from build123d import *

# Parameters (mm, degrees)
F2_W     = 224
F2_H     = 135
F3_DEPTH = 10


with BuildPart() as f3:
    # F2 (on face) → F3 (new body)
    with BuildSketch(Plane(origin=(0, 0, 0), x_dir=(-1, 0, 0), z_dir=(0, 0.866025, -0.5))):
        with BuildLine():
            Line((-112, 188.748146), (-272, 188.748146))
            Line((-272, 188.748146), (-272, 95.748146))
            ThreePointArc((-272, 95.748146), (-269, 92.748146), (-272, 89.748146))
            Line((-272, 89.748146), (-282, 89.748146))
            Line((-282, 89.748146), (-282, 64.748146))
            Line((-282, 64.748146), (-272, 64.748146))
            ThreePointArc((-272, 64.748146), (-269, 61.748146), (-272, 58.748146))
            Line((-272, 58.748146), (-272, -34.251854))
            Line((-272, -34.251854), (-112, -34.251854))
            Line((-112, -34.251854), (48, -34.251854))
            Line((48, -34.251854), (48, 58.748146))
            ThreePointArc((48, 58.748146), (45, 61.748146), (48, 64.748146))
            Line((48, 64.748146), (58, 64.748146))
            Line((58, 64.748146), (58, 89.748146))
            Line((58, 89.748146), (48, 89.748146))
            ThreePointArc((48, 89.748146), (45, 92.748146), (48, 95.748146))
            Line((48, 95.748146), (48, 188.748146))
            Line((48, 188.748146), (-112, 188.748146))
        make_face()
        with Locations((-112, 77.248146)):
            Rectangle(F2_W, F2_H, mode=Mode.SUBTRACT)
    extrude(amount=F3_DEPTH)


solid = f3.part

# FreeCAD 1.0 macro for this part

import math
import FreeCAD as App
import Part
import Sketcher
from FreeCAD import Vector

doc = App.newDocument("Part")
params = doc.addObject("Spreadsheet::Sheet", "Params")
for row, (alias, value) in enumerate([
    ("sketch1_radius", "3 mm"),
    ("sketch1_width", "10 mm"),
    ("sketch1_width2", "320 mm"),
    ("sketch1_width3", "224 mm"),
    ("sketch1_height", "93 mm"),
    ("pad1_length", "10 mm"),
], start=1):
    params.set(f"A{row}", alias)
    params.set(f"B{row}", "=" + value)
    params.setAlias(f"B{row}", alias)

body = doc.addObject("PartDesign::Body", "Body")

# Sketch on an angled plane
sketch1 = body.newObject("Sketcher::SketchObject", "Sketch")
sketch1.Placement = App.Placement(Vector(0, 0, 0), App.Rotation(Vector(-1, 0, 0), Vector(0, 0.500000175, 0.866025303), Vector(0, 0.866025303, -0.500000175), "ZXY"))
sketch1.addGeometry([
    Part.LineSegment(Vector(-272, 188.7, 0), Vector(-272, 95.7, 0)),  # 0
    Part.ArcOfCircle(Part.Circle(Vector(-272, 92.7, 0), Vector(0, 0, 1), 3), math.radians(-90), math.radians(90)),  # 1
    Part.LineSegment(Vector(-272, 89.7, 0), Vector(-282, 89.7, 0)),  # 2
    Part.LineSegment(Vector(-282, 89.7, 0), Vector(-282, 64.7, 0)),  # 3
    Part.LineSegment(Vector(-282, 64.7, 0), Vector(-272, 64.7, 0)),  # 4
    Part.ArcOfCircle(Part.Circle(Vector(-272, 61.7, 0), Vector(0, 0, 1), 3), math.radians(-90), math.radians(90)),  # 5
    Part.LineSegment(Vector(-272, 58.7, 0), Vector(-272, -34.3, 0)),  # 6
    Part.LineSegment(Vector(-272, -34.3, 0), Vector(48, -34.3, 0)),  # 7
    Part.LineSegment(Vector(48, -34.3, 0), Vector(48, 58.7, 0)),  # 8
    Part.ArcOfCircle(Part.Circle(Vector(48, 61.7, 0), Vector(0, 0, 1), 3), math.radians(90), math.radians(270)),  # 9
    Part.LineSegment(Vector(48, 64.7, 0), Vector(58, 64.7, 0)),  # 10
    Part.LineSegment(Vector(58, 64.7, 0), Vector(58, 89.7, 0)),  # 11
    Part.LineSegment(Vector(58, 89.7, 0), Vector(48, 89.7, 0)),  # 12
    Part.ArcOfCircle(Part.Circle(Vector(48, 92.7, 0), Vector(0, 0, 1), 3), math.radians(90), math.radians(270)),  # 13
    Part.LineSegment(Vector(48, 95.7, 0), Vector(48, 188.7, 0)),  # 14
    Part.LineSegment(Vector(48, 188.7, 0), Vector(-272, 188.7, 0)),  # 15
    Part.LineSegment(Vector(0, 9.7, 0), Vector(-224, 9.7, 0)),  # 16
    Part.LineSegment(Vector(-224, 9.7, 0), Vector(-224, 144.7, 0)),  # 17
    Part.LineSegment(Vector(-224, 144.7, 0), Vector(0, 144.7, 0)),  # 18
    Part.LineSegment(Vector(0, 144.7, 0), Vector(0, 9.7, 0)),  # 19
], False)
sketch1.addConstraint([
    Sketcher.Constraint("Coincident", 0, 2, 1, 2),
    Sketcher.Constraint("Tangent", 1, 1, 2, 1),
    Sketcher.Constraint("Coincident", 2, 2, 3, 1),
    Sketcher.Constraint("Coincident", 3, 2, 4, 1),
    Sketcher.Constraint("Tangent", 4, 2, 5, 2),
    Sketcher.Constraint("Coincident", 5, 1, 6, 1),
    Sketcher.Constraint("Coincident", 6, 2, 7, 1),
    Sketcher.Constraint("Coincident", 7, 2, 8, 1),
    Sketcher.Constraint("Coincident", 8, 2, 9, 2),
    Sketcher.Constraint("Tangent", 9, 1, 10, 1),
    Sketcher.Constraint("Coincident", 10, 2, 11, 1),
    Sketcher.Constraint("Coincident", 11, 2, 12, 1),
    Sketcher.Constraint("Tangent", 12, 2, 13, 2),
    Sketcher.Constraint("Coincident", 13, 1, 14, 1),
    Sketcher.Constraint("Coincident", 14, 2, 15, 1),
    Sketcher.Constraint("Coincident", 15, 2, 0, 1),
    Sketcher.Constraint("Coincident", 16, 2, 17, 1),
    Sketcher.Constraint("Coincident", 17, 2, 18, 1),
    Sketcher.Constraint("Coincident", 18, 2, 19, 1),
    Sketcher.Constraint("Coincident", 19, 2, 16, 1),
    Sketcher.Constraint("Vertical", 0),
    Sketcher.Constraint("Horizontal", 2),
    Sketcher.Constraint("Vertical", 3),
    Sketcher.Constraint("Horizontal", 4),
    Sketcher.Constraint("Vertical", 6),
    Sketcher.Constraint("Horizontal", 7),
    Sketcher.Constraint("Vertical", 8),
    Sketcher.Constraint("Horizontal", 10),
    Sketcher.Constraint("Vertical", 11),
    Sketcher.Constraint("Horizontal", 12),
    Sketcher.Constraint("Vertical", 14),
    Sketcher.Constraint("Horizontal", 15),
    Sketcher.Constraint("Horizontal", 16),
    Sketcher.Constraint("Vertical", 17),
    Sketcher.Constraint("Horizontal", 18),
    Sketcher.Constraint("Vertical", 19),
    Sketcher.Constraint("Equal", 1, 5),
    Sketcher.Constraint("Equal", 5, 9),
    Sketcher.Constraint("Equal", 9, 13),
    Sketcher.Constraint("PointOnObject", 18, 2, -2),
    Sketcher.Constraint("Horizontal", 5, 3, 9, 3),
    Sketcher.Constraint("Horizontal", 1, 3, 13, 3),
    Sketcher.Constraint("Vertical", 1, 3, 5, 3),
    Sketcher.Constraint("Vertical", 9, 3, 13, 3),
    Sketcher.Constraint("Vertical", 5, 3, 0, 2),
    Sketcher.Constraint("Vertical", 4, 2, 5, 1),
    Sketcher.Constraint("Vertical", 13, 3, 7, 2),
    Sketcher.Constraint("Vertical", 12, 2, 13, 1),
    Sketcher.Constraint("Equal", 4, 10),
    Sketcher.Constraint("Equal", 0, 6),
    Sketcher.Constraint("Radius", 1, 3.0),
    Sketcher.Constraint("DistanceX", 2, 2, 2, 1, 10.0),
    Sketcher.Constraint("DistanceX", 7, 1, 7, 2, 320.0),
    Sketcher.Constraint("DistanceX", 16, 2, 16, 1, 224.0),
    Sketcher.Constraint("DistanceY", 0, 2, 0, 1, 93.0),
    Sketcher.Constraint("DistanceY", 3, 2, 3, 1, 25.0),
    Sketcher.Constraint("DistanceY", 17, 1, 17, 2, 135.0),
    Sketcher.Constraint("DistanceX", 1, 3, -1, 1, 272.0),
    Sketcher.Constraint("DistanceY", 6, 2, 16, 2, 44.0),
    Sketcher.Constraint("DistanceY", -1, 1, 1, 3, 92.748146),
])
sketch1.setExpression("Constraints[50]", "Params.sketch1_radius")
sketch1.setExpression("Constraints[51]", "Params.sketch1_width")
sketch1.setExpression("Constraints[52]", "Params.sketch1_width2")
sketch1.setExpression("Constraints[53]", "Params.sketch1_width3")
sketch1.setExpression("Constraints[54]", "Params.sketch1_height")
pad1 = body.newObject("PartDesign::Pad", "Pad")
pad1.Profile = sketch1
pad1.setExpression("Length", "Params.pad1_length")

doc.recompute()
